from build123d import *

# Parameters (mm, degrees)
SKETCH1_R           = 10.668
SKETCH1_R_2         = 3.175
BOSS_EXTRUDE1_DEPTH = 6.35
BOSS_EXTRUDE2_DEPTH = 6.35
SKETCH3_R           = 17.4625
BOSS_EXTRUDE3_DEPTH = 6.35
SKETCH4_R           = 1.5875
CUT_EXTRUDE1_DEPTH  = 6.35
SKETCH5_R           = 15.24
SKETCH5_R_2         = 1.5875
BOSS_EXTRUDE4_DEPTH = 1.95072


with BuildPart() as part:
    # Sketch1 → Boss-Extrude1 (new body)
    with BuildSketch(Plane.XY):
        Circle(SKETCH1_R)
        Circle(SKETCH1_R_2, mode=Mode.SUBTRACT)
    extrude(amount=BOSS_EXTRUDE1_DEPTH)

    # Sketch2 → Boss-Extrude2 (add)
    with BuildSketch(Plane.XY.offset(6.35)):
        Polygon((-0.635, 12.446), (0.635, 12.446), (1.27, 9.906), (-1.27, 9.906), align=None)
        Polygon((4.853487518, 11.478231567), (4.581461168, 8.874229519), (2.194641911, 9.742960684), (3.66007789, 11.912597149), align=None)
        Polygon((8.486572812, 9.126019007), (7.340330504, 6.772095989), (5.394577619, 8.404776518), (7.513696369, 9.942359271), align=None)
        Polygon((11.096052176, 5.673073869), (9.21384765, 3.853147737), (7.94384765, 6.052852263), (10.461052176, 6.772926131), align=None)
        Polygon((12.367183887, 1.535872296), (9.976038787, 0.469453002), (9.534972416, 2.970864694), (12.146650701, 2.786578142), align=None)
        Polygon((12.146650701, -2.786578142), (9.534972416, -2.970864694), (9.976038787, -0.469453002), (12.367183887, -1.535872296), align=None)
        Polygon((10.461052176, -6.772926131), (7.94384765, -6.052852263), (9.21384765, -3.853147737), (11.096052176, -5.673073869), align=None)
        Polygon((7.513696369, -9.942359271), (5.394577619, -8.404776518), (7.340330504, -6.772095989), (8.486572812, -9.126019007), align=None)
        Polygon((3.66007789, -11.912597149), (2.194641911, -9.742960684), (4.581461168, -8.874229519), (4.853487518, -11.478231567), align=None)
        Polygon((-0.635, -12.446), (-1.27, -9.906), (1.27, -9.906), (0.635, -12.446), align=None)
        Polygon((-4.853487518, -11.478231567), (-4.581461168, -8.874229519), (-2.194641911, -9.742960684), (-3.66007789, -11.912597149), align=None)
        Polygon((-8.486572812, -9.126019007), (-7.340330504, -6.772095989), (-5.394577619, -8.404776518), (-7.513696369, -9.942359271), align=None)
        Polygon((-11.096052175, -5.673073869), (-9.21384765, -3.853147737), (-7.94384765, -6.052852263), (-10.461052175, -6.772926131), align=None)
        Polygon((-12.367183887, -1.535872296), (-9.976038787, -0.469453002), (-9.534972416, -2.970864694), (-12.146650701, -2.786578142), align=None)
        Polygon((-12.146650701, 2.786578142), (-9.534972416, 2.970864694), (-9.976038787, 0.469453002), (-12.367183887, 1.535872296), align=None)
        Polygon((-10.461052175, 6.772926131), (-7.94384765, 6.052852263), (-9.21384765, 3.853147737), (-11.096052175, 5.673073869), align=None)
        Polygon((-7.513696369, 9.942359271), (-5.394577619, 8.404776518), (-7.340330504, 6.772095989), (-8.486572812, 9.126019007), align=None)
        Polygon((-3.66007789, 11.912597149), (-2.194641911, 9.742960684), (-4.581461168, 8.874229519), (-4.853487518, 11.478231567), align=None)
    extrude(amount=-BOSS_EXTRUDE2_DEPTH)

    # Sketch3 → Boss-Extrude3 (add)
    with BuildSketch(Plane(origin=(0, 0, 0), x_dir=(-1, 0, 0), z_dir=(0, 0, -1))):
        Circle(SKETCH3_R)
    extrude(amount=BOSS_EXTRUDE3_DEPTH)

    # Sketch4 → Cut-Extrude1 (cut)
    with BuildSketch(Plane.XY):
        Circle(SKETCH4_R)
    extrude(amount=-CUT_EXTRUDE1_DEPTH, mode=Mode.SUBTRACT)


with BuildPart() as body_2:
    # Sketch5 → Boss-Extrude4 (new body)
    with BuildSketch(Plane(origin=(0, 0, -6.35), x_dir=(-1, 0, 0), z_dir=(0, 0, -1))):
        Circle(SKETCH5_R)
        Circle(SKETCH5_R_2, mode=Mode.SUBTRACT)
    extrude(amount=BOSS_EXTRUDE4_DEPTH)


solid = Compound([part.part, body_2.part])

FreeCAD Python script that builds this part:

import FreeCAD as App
import Part
import Sketcher

V = App.Vector
Q = App.Units.Quantity

doc = App.newDocument("Part")
body = doc.addObject("PartDesign::Body", "Body")

sketch1 = doc.addObject("Sketcher::SketchObject", "Sketch")
body.addObject(sketch1)
sketch1.AttachmentSupport = (doc.XY_Plane, [""])
sketch1.MapMode = "FlatFace"
sketch1.addGeometry([
    Part.Circle(V(0, 0, 0), V(0, 0, 1), 10.668),
    Part.Circle(V(0, 0, 0), V(0, 0, 1), 3.175),
], False)
sketch1.addConstraint([
    Sketcher.Constraint("Coincident", 0, 3, -1, 1),
    Sketcher.Constraint("Coincident", 1, 3, -1, 1),
    Sketcher.Constraint("Diameter", 0, Q("0.84 in")),
    Sketcher.Constraint("Diameter", 1, Q("0.25 in")),
])
pad1 = doc.addObject("PartDesign::Pad", "Pad")
body.addObject(pad1)
pad1.Profile = sketch1
pad1.Length = Q("0.25 in")

sketch2 = doc.addObject("Sketcher::SketchObject", "Sketch001")
body.addObject(sketch2)
sketch2.AttachmentSupport = (doc.XY_Plane, [""])
sketch2.MapMode = "FlatFace"
sketch2.AttachmentOffset = App.Placement(V(0, 0, 0.25 * 25.4), App.Rotation())
sketch2.addGeometry([
    Part.LineSegment(V(0.635, 12.446, 0), V(-0.635, 12.446, 0)),
    Part.LineSegment(V(-0.635, 12.446, 0), V(-1.27, 9.906, 0)),
    Part.LineSegment(V(-1.27, 9.906, 0), V(1.27, 9.906, 0)),
    Part.LineSegment(V(1.27, 9.906, 0), V(0.635, 12.446, 0)),
    Part.LineSegment(V(4.581461, 8.87423, 0), V(4.853488, 11.478232, 0)),
    Part.LineSegment(V(4.853488, 11.478232, 0), V(3.660078, 11.912597, 0)),
    Part.LineSegment(V(3.660078, 11.912597, 0), V(2.194642, 9.742961, 0)),
    Part.LineSegment(V(2.194642, 9.742961, 0), V(4.581461, 8.87423, 0)),
    Part.LineSegment(V(7.340331, 6.772096, 0), V(8.486573, 9.126019, 0)),
    Part.LineSegment(V(8.486573, 9.126019, 0), V(7.513696, 9.942359, 0)),
    Part.LineSegment(V(7.513696, 9.942359, 0), V(5.394578, 8.404777, 0)),
    Part.LineSegment(V(5.394578, 8.404777, 0), V(7.340331, 6.772096, 0)),
    Part.LineSegment(V(9.213848, 3.853148, 0), V(11.096052, 5.673074, 0)),
    Part.LineSegment(V(11.096052, 5.673074, 0), V(10.461052, 6.772926, 0)),
    Part.LineSegment(V(10.461052, 6.772926, 0), V(7.943848, 6.052852, 0)),
    Part.LineSegment(V(7.943848, 6.052852, 0), V(9.213848, 3.853148, 0)),
    Part.LineSegment(V(9.976039, 0.469453, 0), V(12.367184, 1.535872, 0)),
    Part.LineSegment(V(12.367184, 1.535872, 0), V(12.146651, 2.786578, 0)),
    Part.LineSegment(V(12.146651, 2.786578, 0), V(9.534972, 2.970865, 0)),
    Part.LineSegment(V(9.534972, 2.970865, 0), V(9.976039, 0.469453, 0)),
    Part.LineSegment(V(9.534972, -2.970865, 0), V(12.146651, -2.786578, 0)),
    Part.LineSegment(V(12.146651, -2.786578, 0), V(12.367184, -1.535872, 0)),
    Part.LineSegment(V(12.367184, -1.535872, 0), V(9.976039, -0.469453, 0)),
    Part.LineSegment(V(9.976039, -0.469453, 0), V(9.534972, -2.970865, 0)),
    Part.LineSegment(V(7.943848, -6.052852, 0), V(10.461052, -6.772926, 0)),
    Part.LineSegment(V(10.461052, -6.772926, 0), V(11.096052, -5.673074, 0)),
    Part.LineSegment(V(11.096052, -5.673074, 0), V(9.213848, -3.853148, 0)),
    Part.LineSegment(V(9.213848, -3.853148, 0), V(7.943848, -6.052852, 0)),
    Part.LineSegment(V(5.394578, -8.404777, 0), V(7.513696, -9.942359, 0)),
    Part.LineSegment(V(7.513696, -9.942359, 0), V(8.486573, -9.126019, 0)),
    Part.LineSegment(V(8.486573, -9.126019, 0), V(7.340331, -6.772096, 0)),
    Part.LineSegment(V(7.340331, -6.772096, 0), V(5.394578, -8.404777, 0)),
    Part.LineSegment(V(2.194642, -9.742961, 0), V(3.660078, -11.912597, 0)),
    Part.LineSegment(V(3.660078, -11.912597, 0), V(4.853488, -11.478232, 0)),
    Part.LineSegment(V(4.853488, -11.478232, 0), V(4.581461, -8.87423, 0)),
    Part.LineSegment(V(4.581461, -8.87423, 0), V(2.194642, -9.742961, 0)),
    Part.LineSegment(V(-1.27, -9.906, 0), V(-0.635, -12.446, 0)),
    Part.LineSegment(V(-0.635, -12.446, 0), V(0.635, -12.446, 0)),
    Part.LineSegment(V(0.635, -12.446, 0), V(1.27, -9.906, 0)),
    Part.LineSegment(V(1.27, -9.906, 0), V(-1.27, -9.906, 0)),
    Part.LineSegment(V(-4.581461, -8.87423, 0), V(-4.853488, -11.478232, 0)),
    Part.LineSegment(V(-4.853488, -11.478232, 0), V(-3.660078, -11.912597, 0)),
    Part.LineSegment(V(-3.660078, -11.912597, 0), V(-2.194642, -9.742961, 0)),
    Part.LineSegment(V(-2.194642, -9.742961, 0), V(-4.581461, -8.87423, 0)),
    Part.LineSegment(V(-7.340331, -6.772096, 0), V(-8.486573, -9.126019, 0)),
    Part.LineSegment(V(-8.486573, -9.126019, 0), V(-7.513696, -9.942359, 0)),
    Part.LineSegment(V(-7.513696, -9.942359, 0), V(-5.394578, -8.404777, 0)),
    Part.LineSegment(V(-5.394578, -8.404777, 0), V(-7.340331, -6.772096, 0)),
    Part.LineSegment(V(-9.213848, -3.853148, 0), V(-11.096052, -5.673074, 0)),
    Part.LineSegment(V(-11.096052, -5.673074, 0), V(-10.461052, -6.772926, 0)),
    Part.LineSegment(V(-10.461052, -6.772926, 0), V(-7.943848, -6.052852, 0)),
    Part.LineSegment(V(-7.943848, -6.052852, 0), V(-9.213848, -3.853148, 0)),
    Part.LineSegment(V(-9.976039, -0.469453, 0), V(-12.367184, -1.535872, 0)),
    Part.LineSegment(V(-12.367184, -1.535872, 0), V(-12.146651, -2.786578, 0)),
    Part.LineSegment(V(-12.146651, -2.786578, 0), V(-9.534972, -2.970865, 0)),
    Part.LineSegment(V(-9.534972, -2.970865, 0), V(-9.976039, -0.469453, 0)),
    Part.LineSegment(V(-9.534972, 2.970865, 0), V(-12.146651, 2.786578, 0)),
    Part.LineSegment(V(-12.146651, 2.786578, 0), V(-12.367184, 1.535872, 0)),
    Part.LineSegment(V(-12.367184, 1.535872, 0), V(-9.976039, 0.469453, 0)),
    Part.LineSegment(V(-9.976039, 0.469453, 0), V(-9.534972, 2.970865, 0)),
    Part.LineSegment(V(-7.943848, 6.052852, 0), V(-10.461052, 6.772926, 0)),
    Part.LineSegment(V(-10.461052, 6.772926, 0), V(-11.096052, 5.673074, 0)),
    Part.LineSegment(V(-11.096052, 5.673074, 0), V(-9.213848, 3.853148, 0)),
    Part.LineSegment(V(-9.213848, 3.853148, 0), V(-7.943848, 6.052852, 0)),
    Part.LineSegment(V(-5.394578, 8.404777, 0), V(-7.513696, 9.942359, 0)),
    Part.LineSegment(V(-7.513696, 9.942359, 0), V(-8.486573, 9.126019, 0)),
    Part.LineSegment(V(-8.486573, 9.126019, 0), V(-7.340331, 6.772096, 0)),
    Part.LineSegment(V(-7.340331, 6.772096, 0), V(-5.394578, 8.404777, 0)),
    Part.LineSegment(V(-2.194642, 9.742961, 0), V(-3.660078, 11.912597, 0)),
    Part.LineSegment(V(-3.660078, 11.912597, 0), V(-4.853488, 11.478232, 0)),
    Part.LineSegment(V(-4.853488, 11.478232, 0), V(-4.581461, 8.87423, 0)),
    Part.LineSegment(V(-4.581461, 8.87423, 0), V(-2.194642, 9.742961, 0)),
], False)
sketch2.addConstraint([
    Sketcher.Constraint("Coincident", 0, 2, 1, 1),
    Sketcher.Constraint("Coincident", 1, 2, 2, 1),
    Sketcher.Constraint("Coincident", 2, 2, 3, 1),
    Sketcher.Constraint("Coincident", 3, 2, 0, 1),
    Sketcher.Constraint("Coincident", 4, 2, 5, 1),
    Sketcher.Constraint("Coincident", 5, 2, 6, 1),
    Sketcher.Constraint("Coincident", 6, 2, 7, 1),
    Sketcher.Constraint("Coincident", 7, 2, 4, 1),
    Sketcher.Constraint("Coincident", 8, 2, 9, 1),
    Sketcher.Constraint("Coincident", 9, 2, 10, 1),
    Sketcher.Constraint("Coincident", 10, 2, 11, 1),
    Sketcher.Constraint("Coincident", 11, 2, 8, 1),
    Sketcher.Constraint("Coincident", 12, 2, 13, 1),
    Sketcher.Constraint("Coincident", 13, 2, 14, 1),
    Sketcher.Constraint("Coincident", 14, 2, 15, 1),
    Sketcher.Constraint("Coincident", 15, 2, 12, 1),
    Sketcher.Constraint("Coincident", 16, 2, 17, 1),
    Sketcher.Constraint("Coincident", 17, 2, 18, 1),
    Sketcher.Constraint("Coincident", 18, 2, 19, 1),
    Sketcher.Constraint("Coincident", 19, 2, 16, 1),
    Sketcher.Constraint("Coincident", 20, 2, 21, 1),
    Sketcher.Constraint("Coincident", 21, 2, 22, 1),
    Sketcher.Constraint("Coincident", 22, 2, 23, 1),
    Sketcher.Constraint("Coincident", 23, 2, 20, 1),
    Sketcher.Constraint("Coincident", 24, 2, 25, 1),
    Sketcher.Constraint("Coincident", 25, 2, 26, 1),
    Sketcher.Constraint("Coincident", 26, 2, 27, 1),
    Sketcher.Constraint("Coincident", 27, 2, 24, 1),
    Sketcher.Constraint("Coincident", 28, 2, 29, 1),
    Sketcher.Constraint("Coincident", 29, 2, 30, 1),
    Sketcher.Constraint("Coincident", 30, 2, 31, 1),
    Sketcher.Constraint("Coincident", 31, 2, 28, 1),
    Sketcher.Constraint("Coincident", 32, 2, 33, 1),
    Sketcher.Constraint("Coincident", 33, 2, 34, 1),
    Sketcher.Constraint("Coincident", 34, 2, 35, 1),
    Sketcher.Constraint("Coincident", 35, 2, 32, 1),
    Sketcher.Constraint("Coincident", 36, 2, 37, 1),
    Sketcher.Constraint("Coincident", 37, 2, 38, 1),
    Sketcher.Constraint("Coincident", 38, 2, 39, 1),
    Sketcher.Constraint("Coincident", 39, 2, 36, 1),
    Sketcher.Constraint("Coincident", 40, 2, 41, 1),
    Sketcher.Constraint("Coincident", 41, 2, 42, 1),
    Sketcher.Constraint("Coincident", 42, 2, 43, 1),
    Sketcher.Constraint("Coincident", 43, 2, 40, 1),
    Sketcher.Constraint("Coincident", 44, 2, 45, 1),
    Sketcher.Constraint("Coincident", 45, 2, 46, 1),
    Sketcher.Constraint("Coincident", 46, 2, 47, 1),
    Sketcher.Constraint("Coincident", 47, 2, 44, 1),
    Sketcher.Constraint("Coincident", 48, 2, 49, 1),
    Sketcher.Constraint("Coincident", 49, 2, 50, 1),
    Sketcher.Constraint("Coincident", 50, 2, 51, 1),
    Sketcher.Constraint("Coincident", 51, 2, 48, 1),
    Sketcher.Constraint("Coincident", 52, 2, 53, 1),
    Sketcher.Constraint("Coincident", 53, 2, 54, 1),
    Sketcher.Constraint("Coincident", 54, 2, 55, 1),
    Sketcher.Constraint("Coincident", 55, 2, 52, 1),
    Sketcher.Constraint("Coincident", 56, 2, 57, 1),
    Sketcher.Constraint("Coincident", 57, 2, 58, 1),
    Sketcher.Constraint("Coincident", 58, 2, 59, 1),
    Sketcher.Constraint("Coincident", 59, 2, 56, 1),
    Sketcher.Constraint("Coincident", 60, 2, 61, 1),
    Sketcher.Constraint("Coincident", 61, 2, 62, 1),
    Sketcher.Constraint("Coincident", 62, 2, 63, 1),
    Sketcher.Constraint("Coincident", 63, 2, 60, 1),
    Sketcher.Constraint("Coincident", 64, 2, 65, 1),
    Sketcher.Constraint("Coincident", 65, 2, 66, 1),
    Sketcher.Constraint("Coincident", 66, 2, 67, 1),
    Sketcher.Constraint("Coincident", 67, 2, 64, 1),
    Sketcher.Constraint("Coincident", 68, 2, 69, 1),
    Sketcher.Constraint("Coincident", 69, 2, 70, 1),
    Sketcher.Constraint("Coincident", 70, 2, 71, 1),
    Sketcher.Constraint("Coincident", 71, 2, 68, 1),
    Sketcher.Constraint("Horizontal", 0),
    Sketcher.Constraint("Horizontal", 2),
    Sketcher.Constraint("Horizontal", 37),
    Sketcher.Constraint("Horizontal", 39),
    Sketcher.Constraint("Symmetric", 3, 2, 36, 2, -1, 1),
    Sketcher.Constraint("Symmetric", 1, 2, 38, 2, -1, 1),
    Sketcher.Constraint("Symmetric", 4, 2, 40, 2, -1, 1),
    Sketcher.Constraint("Symmetric", 5, 2, 41, 2, -1, 1),
    Sketcher.Constraint("Symmetric", 6, 2, 42, 2, -1, 1),
    Sketcher.Constraint("Symmetric", 7, 2, 43, 2, -1, 1),
    Sketcher.Constraint("Symmetric", 8, 2, 44, 2, -1, 1),
    Sketcher.Constraint("Symmetric", 9, 2, 45, 2, -1, 1),
    Sketcher.Constraint("Symmetric", 10, 2, 46, 2, -1, 1),
    Sketcher.Constraint("Symmetric", 11, 2, 47, 2, -1, 1),
    Sketcher.Constraint("Symmetric", 12, 2, 48, 2, -1, 1),
    Sketcher.Constraint("Symmetric", 13, 2, 49, 2, -1, 1),
    Sketcher.Constraint("Symmetric", 14, 2, 50, 2, -1, 1),
    Sketcher.Constraint("Symmetric", 15, 2, 51, 2, -1, 1),
    Sketcher.Constraint("Symmetric", 16, 2, 52, 2, -1, 1),
    Sketcher.Constraint("Symmetric", 17, 2, 53, 2, -1, 1),
    Sketcher.Constraint("Symmetric", 18, 2, 54, 2, -1, 1),
    Sketcher.Constraint("Symmetric", 19, 2, 55, 2, -1, 1),
    Sketcher.Constraint("Symmetric", 20, 2, 56, 2, -1, 1),
    Sketcher.Constraint("Symmetric", 21, 2, 57, 2, -1, 1),
    Sketcher.Constraint("Symmetric", 22, 2, 58, 2, -1, 1),
    Sketcher.Constraint("Symmetric", 23, 2, 59, 2, -1, 1),
    Sketcher.Constraint("Symmetric", 24, 2, 60, 2, -1, 1),
    Sketcher.Constraint("Symmetric", 25, 2, 61, 2, -1, 1),
    Sketcher.Constraint("Symmetric", 26, 2, 62, 2, -1, 1),
    Sketcher.Constraint("Symmetric", 27, 2, 63, 2, -1, 1),
    Sketcher.Constraint("Symmetric", 28, 2, 64, 2, -1, 1),
    Sketcher.Constraint("Symmetric", 29, 2, 65, 2, -1, 1),
    Sketcher.Constraint("Symmetric", 30, 2, 66, 2, -1, 1),
    Sketcher.Constraint("Symmetric", 31, 2, 67, 2, -1, 1),
    Sketcher.Constraint("Symmetric", 32, 2, 68, 2, -1, 1),
    Sketcher.Constraint("Symmetric", 33, 2, 69, 2, -1, 1),
    Sketcher.Constraint("Symmetric", 34, 2, 70, 2, -1, 1),
    Sketcher.Constraint("Symmetric", 35, 2, 71, 2, -1, 1),
    Sketcher.Constraint("Symmetric", 33, 2, 40, 2, -2),
    Sketcher.Constraint("Symmetric", 32, 2, 41, 2, -2),
    Sketcher.Constraint("Symmetric", 35, 2, 42, 2, -2),
    Sketcher.Constraint("Symmetric", 34, 2, 43, 2, -2),
    Sketcher.Constraint("Symmetric", 29, 2, 44, 2, -2),
    Sketcher.Constraint("Symmetric", 28, 2, 45, 2, -2),
    Sketcher.Constraint("Symmetric", 31, 2, 46, 2, -2),
    Sketcher.Constraint("Symmetric", 30, 2, 47, 2, -2),
    Sketcher.Constraint("Symmetric", 25, 2, 48, 2, -2),
    Sketcher.Constraint("Symmetric", 24, 2, 49, 2, -2),
    Sketcher.Constraint("Symmetric", 27, 2, 50, 2, -2),
    Sketcher.Constraint("Symmetric", 26, 2, 51, 2, -2),
    Sketcher.Constraint("Symmetric", 21, 2, 52, 2, -2),
    Sketcher.Constraint("Symmetric", 20, 2, 53, 2, -2),
    Sketcher.Constraint("Symmetric", 23, 2, 54, 2, -2),
    Sketcher.Constraint("Symmetric", 22, 2, 55, 2, -2),
    Sketcher.Constraint("Parallel", 5, 7),
    Sketcher.Constraint("Parallel", 9, 11),
    Sketcher.Constraint("Parallel", 13, 15),
    Sketcher.Constraint("Parallel", 17, 19),
    Sketcher.Constraint("Parallel", 3, 36),
    Sketcher.Constraint("Parallel", 1, 38),
    Sketcher.Constraint("Vertical", 0, 2, 36, 2),
    Sketcher.Constraint("Vertical", 2, 2, 38, 2),
    Sketcher.Constraint("Equal", 3, 4),
    Sketcher.Constraint("Equal", 4, 6),
    Sketcher.Constraint("Equal", 6, 8),
    Sketcher.Constraint("Equal", 5, 9),
    Sketcher.Constraint("Equal", 8, 10),
    Sketcher.Constraint("Equal", 7, 11),
    Sketcher.Constraint("Equal", 10, 12),
    Sketcher.Constraint("Equal", 9, 13),
    Sketcher.Constraint("Equal", 12, 14),
    Sketcher.Constraint("Equal", 11, 15),
    Sketcher.Constraint("Equal", 14, 16),
    Sketcher.Constraint("Equal", 13, 17),
    Sketcher.Constraint("Equal", 16, 18),
    Sketcher.Constraint("Equal", 15, 19),
    Sketcher.Constraint("DistanceX", 2, 1, 2, 2, Q("0.1 in")),
    Sketcher.Constraint("Angle", 5, Q("160 deg")),
    Sketcher.Constraint("Angle", 9, Q("140 deg")),
    Sketcher.Constraint("Angle", 13, Q("120 deg")),
    Sketcher.Constraint("Angle", 17, Q("100 deg")),
    Sketcher.Constraint("Distance", 7, Q("0.1 in")),
    Sketcher.Constraint("DistanceX", 0, 2, 0, 1, Q("0.05 in")),
    Sketcher.Constraint("Distance", 5, Q("0.05 in")),
    Sketcher.Constraint("DistanceY", -1, 1, 0, 2, Q("0.49 in")),
    Sketcher.Constraint("DistanceY", -1, 1, 1, 2, Q("0.39 in")),
    Sketcher.Constraint("DistanceY", -1, 1, 5, 2, Q("0.4689999 in")),
    Sketcher.Constraint("DistanceX", -1, 1, 6, 2, 2.194642),
    Sketcher.Constraint("DistanceY", -1, 1, 8, 2, 9.126019),
    Sketcher.Constraint("DistanceX", -1, 1, 11, 2, 7.340331),
    Sketcher.Constraint("DistanceX", -1, 1, 17, 2, 12.146651),
    Sketcher.Constraint("DistanceY", -1, 1, 17, 2, 2.786578),
    Sketcher.Constraint("DistanceX", -1, 1, 12, 2, 11.096052),
    Sketcher.Constraint("DistanceY", -1, 1, 12, 2, 5.673074),
])
pad2 = doc.addObject("PartDesign::Pad", "Pad001")
body.addObject(pad2)
pad2.Profile = sketch2
pad2.Length = Q("0.25 in")
pad2.Reversed = True

sketch3 = doc.addObject("Sketcher::SketchObject", "Sketch002")
body.addObject(sketch3)
sketch3.AttachmentSupport = (doc.XY_Plane, [""])
sketch3.MapMode = "FlatFace"
sketch3.addGeometry(Part.Circle(V(0, 0, 0), V(0, 0, 1), 17.4625), False)
sketch3.addConstraint([
    Sketcher.Constraint("Coincident", 0, 3, -1, 1),
    Sketcher.Constraint("Diameter", 0, Q("1.375 in")),
])
pad3 = doc.addObject("PartDesign::Pad", "Pad002")
body.addObject(pad3)
pad3.Profile = sketch3
pad3.Length = Q("0.25 in")
pad3.Reversed = True

sketch4 = doc.addObject("Sketcher::SketchObject", "Sketch003")
body.addObject(sketch4)
sketch4.AttachmentSupport = (doc.XY_Plane, [""])
sketch4.MapMode = "FlatFace"
sketch4.addGeometry(Part.Circle(V(0, 0, 0), V(0, 0, 1), 1.5875), False)
sketch4.addConstraint([
    Sketcher.Constraint("Coincident", 0, 3, -1, 1),
    Sketcher.Constraint("Diameter", 0, Q("0.125 in")),
])
pocket1 = doc.addObject("PartDesign::Pocket", "Pocket")
body.addObject(pocket1)
pocket1.Profile = sketch4
pocket1.Length = Q("0.25 in")
body2 = doc.addObject("PartDesign::Body", "Body001")

sketch5 = doc.addObject("Sketcher::SketchObject", "Sketch004")
body2.addObject(sketch5)
sketch5.AttachmentSupport = (doc.getObject("XY_Plane001"), [""])
sketch5.MapMode = "FlatFace"
sketch5.AttachmentOffset = App.Placement(V(0, 0, -0.25 * 25.4), App.Rotation())
sketch5.addGeometry([
    Part.Circle(V(0, 0, 0), V(0, 0, 1), 15.24),
    Part.Circle(V(0, 0, 0), V(0, 0, 1), 1.5875),
], False)
sketch5.addConstraint([
    Sketcher.Constraint("Coincident", 0, 3, -1, 1),
    Sketcher.Constraint("Coincident", 1, 3, -1, 1),
    Sketcher.Constraint("Diameter", 0, Q("1.2 in")),
    Sketcher.Constraint("Diameter", 1, Q("0.125 in")),
])
pad4 = doc.addObject("PartDesign::Pad", "Pad003")
body2.addObject(pad4)
pad4.Profile = sketch5
pad4.Length = Q("0.0768 in")
pad4.Reversed = True

doc.recompute()
